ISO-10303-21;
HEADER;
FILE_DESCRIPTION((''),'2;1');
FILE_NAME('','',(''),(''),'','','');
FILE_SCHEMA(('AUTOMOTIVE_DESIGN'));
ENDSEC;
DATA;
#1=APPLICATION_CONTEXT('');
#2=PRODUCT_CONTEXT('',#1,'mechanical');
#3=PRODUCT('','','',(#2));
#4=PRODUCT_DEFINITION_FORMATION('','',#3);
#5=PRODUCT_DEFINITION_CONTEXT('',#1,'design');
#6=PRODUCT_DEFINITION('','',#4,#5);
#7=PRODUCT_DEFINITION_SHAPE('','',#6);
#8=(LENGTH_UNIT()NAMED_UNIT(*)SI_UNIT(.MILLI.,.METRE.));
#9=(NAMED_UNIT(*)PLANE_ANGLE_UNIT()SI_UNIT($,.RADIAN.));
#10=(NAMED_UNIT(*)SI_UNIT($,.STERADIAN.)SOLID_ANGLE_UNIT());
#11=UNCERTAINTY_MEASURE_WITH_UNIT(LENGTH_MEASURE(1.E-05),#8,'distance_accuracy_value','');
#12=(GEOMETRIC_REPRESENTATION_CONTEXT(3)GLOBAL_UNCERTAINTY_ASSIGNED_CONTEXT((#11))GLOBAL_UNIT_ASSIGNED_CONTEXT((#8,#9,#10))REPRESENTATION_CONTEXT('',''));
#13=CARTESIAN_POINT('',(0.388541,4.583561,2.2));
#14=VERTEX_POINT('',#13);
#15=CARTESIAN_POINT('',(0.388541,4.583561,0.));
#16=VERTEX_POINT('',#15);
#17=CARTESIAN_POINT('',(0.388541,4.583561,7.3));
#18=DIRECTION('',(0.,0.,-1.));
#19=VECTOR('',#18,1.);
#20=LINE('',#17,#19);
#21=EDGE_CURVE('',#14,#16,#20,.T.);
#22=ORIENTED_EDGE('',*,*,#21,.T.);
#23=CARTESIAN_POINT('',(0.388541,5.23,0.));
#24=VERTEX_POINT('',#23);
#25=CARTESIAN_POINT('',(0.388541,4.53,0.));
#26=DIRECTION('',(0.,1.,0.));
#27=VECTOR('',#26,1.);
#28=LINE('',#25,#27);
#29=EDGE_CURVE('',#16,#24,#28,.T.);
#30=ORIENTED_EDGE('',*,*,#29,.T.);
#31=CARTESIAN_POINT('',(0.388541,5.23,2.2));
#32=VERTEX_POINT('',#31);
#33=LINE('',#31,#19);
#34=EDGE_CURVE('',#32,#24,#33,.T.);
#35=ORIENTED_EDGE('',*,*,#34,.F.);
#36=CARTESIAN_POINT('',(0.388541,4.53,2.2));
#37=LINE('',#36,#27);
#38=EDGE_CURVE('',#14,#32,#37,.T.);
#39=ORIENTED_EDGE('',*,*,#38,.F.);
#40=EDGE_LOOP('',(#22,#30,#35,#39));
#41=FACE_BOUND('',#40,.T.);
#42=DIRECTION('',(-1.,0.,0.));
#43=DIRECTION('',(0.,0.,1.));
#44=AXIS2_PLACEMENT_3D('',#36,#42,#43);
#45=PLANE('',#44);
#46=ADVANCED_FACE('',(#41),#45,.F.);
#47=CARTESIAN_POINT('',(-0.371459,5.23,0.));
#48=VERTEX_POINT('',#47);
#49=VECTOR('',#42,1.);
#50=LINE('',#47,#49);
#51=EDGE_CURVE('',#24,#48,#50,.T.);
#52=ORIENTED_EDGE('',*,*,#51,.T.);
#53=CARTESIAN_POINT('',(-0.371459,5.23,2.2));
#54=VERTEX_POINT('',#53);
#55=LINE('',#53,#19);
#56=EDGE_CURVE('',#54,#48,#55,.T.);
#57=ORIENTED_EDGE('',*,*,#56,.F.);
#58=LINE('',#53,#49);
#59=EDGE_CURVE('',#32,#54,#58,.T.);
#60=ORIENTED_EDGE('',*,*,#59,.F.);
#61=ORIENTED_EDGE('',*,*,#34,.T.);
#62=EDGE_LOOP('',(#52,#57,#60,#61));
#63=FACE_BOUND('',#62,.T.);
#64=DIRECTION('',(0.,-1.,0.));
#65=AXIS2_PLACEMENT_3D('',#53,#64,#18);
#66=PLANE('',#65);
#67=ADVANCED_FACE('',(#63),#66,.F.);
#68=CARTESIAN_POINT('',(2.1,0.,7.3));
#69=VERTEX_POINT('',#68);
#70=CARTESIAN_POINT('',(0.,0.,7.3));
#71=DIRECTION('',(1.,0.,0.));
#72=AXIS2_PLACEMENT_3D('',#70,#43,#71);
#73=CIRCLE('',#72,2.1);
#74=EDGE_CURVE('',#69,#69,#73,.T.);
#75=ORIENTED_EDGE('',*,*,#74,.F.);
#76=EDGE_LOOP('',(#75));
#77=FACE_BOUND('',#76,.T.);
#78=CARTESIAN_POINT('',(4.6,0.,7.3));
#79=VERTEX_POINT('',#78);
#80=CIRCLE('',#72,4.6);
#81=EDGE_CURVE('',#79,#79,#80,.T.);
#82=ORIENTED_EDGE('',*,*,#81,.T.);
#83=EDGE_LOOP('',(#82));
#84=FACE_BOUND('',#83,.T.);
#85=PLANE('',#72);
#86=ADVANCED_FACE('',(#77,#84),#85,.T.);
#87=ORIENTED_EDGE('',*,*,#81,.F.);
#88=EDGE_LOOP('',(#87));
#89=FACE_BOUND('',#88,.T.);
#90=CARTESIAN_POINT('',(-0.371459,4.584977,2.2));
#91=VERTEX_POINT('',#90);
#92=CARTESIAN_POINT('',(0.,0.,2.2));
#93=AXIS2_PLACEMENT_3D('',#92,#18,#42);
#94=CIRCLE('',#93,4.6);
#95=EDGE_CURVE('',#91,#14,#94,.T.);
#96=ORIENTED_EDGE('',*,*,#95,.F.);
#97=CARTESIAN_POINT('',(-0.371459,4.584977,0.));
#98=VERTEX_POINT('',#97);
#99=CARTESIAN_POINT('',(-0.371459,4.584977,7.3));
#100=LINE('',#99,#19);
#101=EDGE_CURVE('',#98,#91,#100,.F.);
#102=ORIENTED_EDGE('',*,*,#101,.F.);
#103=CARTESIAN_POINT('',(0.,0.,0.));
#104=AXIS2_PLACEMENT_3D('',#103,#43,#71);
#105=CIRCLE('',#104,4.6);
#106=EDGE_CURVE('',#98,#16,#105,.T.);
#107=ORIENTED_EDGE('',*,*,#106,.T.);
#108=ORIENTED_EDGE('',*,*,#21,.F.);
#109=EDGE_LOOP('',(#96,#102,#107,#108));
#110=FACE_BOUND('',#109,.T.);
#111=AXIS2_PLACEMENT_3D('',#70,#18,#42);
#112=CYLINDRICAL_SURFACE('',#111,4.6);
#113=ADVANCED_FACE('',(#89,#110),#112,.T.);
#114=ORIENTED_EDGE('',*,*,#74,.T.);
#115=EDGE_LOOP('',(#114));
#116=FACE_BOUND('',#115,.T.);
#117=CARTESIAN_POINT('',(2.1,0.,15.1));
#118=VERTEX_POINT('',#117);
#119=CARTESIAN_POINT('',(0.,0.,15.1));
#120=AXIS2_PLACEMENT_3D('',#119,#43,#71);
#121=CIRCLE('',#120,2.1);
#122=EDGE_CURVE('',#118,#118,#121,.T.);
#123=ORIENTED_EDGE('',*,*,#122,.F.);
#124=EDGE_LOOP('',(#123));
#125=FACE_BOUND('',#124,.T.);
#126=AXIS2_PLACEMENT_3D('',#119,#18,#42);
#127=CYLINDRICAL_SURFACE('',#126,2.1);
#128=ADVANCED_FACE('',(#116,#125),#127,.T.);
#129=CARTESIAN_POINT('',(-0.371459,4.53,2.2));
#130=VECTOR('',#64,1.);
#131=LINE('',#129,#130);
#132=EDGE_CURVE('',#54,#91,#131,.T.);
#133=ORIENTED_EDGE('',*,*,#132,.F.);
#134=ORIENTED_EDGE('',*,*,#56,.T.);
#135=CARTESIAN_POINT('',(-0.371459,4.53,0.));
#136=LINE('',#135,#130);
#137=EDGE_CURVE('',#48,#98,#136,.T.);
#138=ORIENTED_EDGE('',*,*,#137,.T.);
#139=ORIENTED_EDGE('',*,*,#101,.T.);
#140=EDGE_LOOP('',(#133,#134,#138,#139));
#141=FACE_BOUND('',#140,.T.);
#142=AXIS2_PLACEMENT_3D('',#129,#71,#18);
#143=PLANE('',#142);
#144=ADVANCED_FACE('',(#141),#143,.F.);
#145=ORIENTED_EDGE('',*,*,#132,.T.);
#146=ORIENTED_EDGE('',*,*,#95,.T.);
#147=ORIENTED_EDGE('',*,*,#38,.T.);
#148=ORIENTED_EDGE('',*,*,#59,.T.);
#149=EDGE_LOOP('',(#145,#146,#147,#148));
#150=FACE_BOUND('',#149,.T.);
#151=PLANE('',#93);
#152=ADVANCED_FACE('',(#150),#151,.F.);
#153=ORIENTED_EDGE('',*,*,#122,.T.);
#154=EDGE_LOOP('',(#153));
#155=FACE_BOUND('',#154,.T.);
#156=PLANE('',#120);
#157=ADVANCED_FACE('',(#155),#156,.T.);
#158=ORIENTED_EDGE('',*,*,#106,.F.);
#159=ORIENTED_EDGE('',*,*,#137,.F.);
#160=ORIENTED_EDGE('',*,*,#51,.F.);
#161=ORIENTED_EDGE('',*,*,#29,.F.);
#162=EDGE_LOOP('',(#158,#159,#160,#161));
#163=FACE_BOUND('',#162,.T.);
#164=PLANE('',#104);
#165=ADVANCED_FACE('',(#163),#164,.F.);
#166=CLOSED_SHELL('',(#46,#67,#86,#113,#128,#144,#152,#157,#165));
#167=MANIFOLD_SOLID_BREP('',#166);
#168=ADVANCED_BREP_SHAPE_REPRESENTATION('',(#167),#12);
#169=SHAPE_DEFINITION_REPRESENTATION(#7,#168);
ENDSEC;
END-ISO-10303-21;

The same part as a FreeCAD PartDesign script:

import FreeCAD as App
import Part
import Sketcher
from FreeCAD import Vector


def add_polygon(sketch, points):
    """Adds a closed chain of lines whose ends are joined by coincident constraints."""
    first, n = sketch.GeometryCount, len(points)
    for a, b in zip(points, points[1:] + points[:1]):
        sketch.addGeometry(Part.LineSegment(App.Vector(*a, 0), App.Vector(*b, 0)), False)
    for i in range(n):
        sketch.addConstraint(Sketcher.Constraint("Coincident", first + i, 2, first + (i + 1) % n, 1))

doc = App.newDocument("Part")
body = doc.addObject("PartDesign::Body", "Body")

# Sketch on XY plane
sketch1 = body.newObject("Sketcher::SketchObject", "Sketch")
sketch1.AttachmentSupport = (doc.getObject("XY_Plane"), [""])
sketch1.MapMode = "FlatFace"
sketch1.addGeometry(Part.Circle(Vector(0, 0, 0), Vector(0, 0, 1), 4.6), False)
sketch1.addConstraint([
    Sketcher.Constraint("Coincident", 0, 3, -1, 1),
    Sketcher.Constraint("Diameter", 0, 9.2),
])
pad1 = body.newObject("PartDesign::Pad", "Pad")
pad1.Profile = sketch1
pad1.Length = 7.3

# Sketch on XY plane
sketch2 = body.newObject("Sketcher::SketchObject", "Sketch001")
sketch2.AttachmentSupport = (doc.getObject("XY_Plane"), [""])
sketch2.MapMode = "FlatFace"
sketch2.AttachmentOffset = App.Placement(Vector(0, 0, 7.3), App.Rotation())
sketch2.addGeometry(Part.Circle(Vector(0, 0, 0), Vector(0, 0, 1), 2.1), False)
sketch2.addConstraint([
    Sketcher.Constraint("Coincident", 0, 3, -1, 1),
    Sketcher.Constraint("Diameter", 0, 4.2),
])
pad2 = body.newObject("PartDesign::Pad", "Pad001")
pad2.Profile = sketch2
pad2.Length = 7.8

# Sketch on XY plane
sketch3 = body.newObject("Sketcher::SketchObject", "Sketch002")
sketch3.AttachmentSupport = (doc.getObject("XY_Plane"), [""])
sketch3.MapMode = "FlatFace"
add_polygon(sketch3, [(-0.4, 5.2), (-0.4, 4.5), (0.4, 4.5), (0.4, 5.2)])  # lines 0-3
sketch3.addConstraint([
    Sketcher.Constraint("Vertical", 0),
    Sketcher.Constraint("Horizontal", 1),
    Sketcher.Constraint("Vertical", 2),
    Sketcher.Constraint("Horizontal", 3),
    Sketcher.Constraint("DistanceY", 0, 2, 0, 1, 0.7),
    Sketcher.Constraint("DistanceX", 1, 1, 1, 2, 0.76),
    Sketcher.Constraint("DistanceY", -1, 1, 0, 2, 4.53),
    Sketcher.Constraint("DistanceX", 0, 2, -1, 1, 0.371459),
])
pad3 = body.newObject("PartDesign::Pad", "Pad002")
pad3.Profile = sketch3
pad3.Length = 2.2

doc.recompute()
